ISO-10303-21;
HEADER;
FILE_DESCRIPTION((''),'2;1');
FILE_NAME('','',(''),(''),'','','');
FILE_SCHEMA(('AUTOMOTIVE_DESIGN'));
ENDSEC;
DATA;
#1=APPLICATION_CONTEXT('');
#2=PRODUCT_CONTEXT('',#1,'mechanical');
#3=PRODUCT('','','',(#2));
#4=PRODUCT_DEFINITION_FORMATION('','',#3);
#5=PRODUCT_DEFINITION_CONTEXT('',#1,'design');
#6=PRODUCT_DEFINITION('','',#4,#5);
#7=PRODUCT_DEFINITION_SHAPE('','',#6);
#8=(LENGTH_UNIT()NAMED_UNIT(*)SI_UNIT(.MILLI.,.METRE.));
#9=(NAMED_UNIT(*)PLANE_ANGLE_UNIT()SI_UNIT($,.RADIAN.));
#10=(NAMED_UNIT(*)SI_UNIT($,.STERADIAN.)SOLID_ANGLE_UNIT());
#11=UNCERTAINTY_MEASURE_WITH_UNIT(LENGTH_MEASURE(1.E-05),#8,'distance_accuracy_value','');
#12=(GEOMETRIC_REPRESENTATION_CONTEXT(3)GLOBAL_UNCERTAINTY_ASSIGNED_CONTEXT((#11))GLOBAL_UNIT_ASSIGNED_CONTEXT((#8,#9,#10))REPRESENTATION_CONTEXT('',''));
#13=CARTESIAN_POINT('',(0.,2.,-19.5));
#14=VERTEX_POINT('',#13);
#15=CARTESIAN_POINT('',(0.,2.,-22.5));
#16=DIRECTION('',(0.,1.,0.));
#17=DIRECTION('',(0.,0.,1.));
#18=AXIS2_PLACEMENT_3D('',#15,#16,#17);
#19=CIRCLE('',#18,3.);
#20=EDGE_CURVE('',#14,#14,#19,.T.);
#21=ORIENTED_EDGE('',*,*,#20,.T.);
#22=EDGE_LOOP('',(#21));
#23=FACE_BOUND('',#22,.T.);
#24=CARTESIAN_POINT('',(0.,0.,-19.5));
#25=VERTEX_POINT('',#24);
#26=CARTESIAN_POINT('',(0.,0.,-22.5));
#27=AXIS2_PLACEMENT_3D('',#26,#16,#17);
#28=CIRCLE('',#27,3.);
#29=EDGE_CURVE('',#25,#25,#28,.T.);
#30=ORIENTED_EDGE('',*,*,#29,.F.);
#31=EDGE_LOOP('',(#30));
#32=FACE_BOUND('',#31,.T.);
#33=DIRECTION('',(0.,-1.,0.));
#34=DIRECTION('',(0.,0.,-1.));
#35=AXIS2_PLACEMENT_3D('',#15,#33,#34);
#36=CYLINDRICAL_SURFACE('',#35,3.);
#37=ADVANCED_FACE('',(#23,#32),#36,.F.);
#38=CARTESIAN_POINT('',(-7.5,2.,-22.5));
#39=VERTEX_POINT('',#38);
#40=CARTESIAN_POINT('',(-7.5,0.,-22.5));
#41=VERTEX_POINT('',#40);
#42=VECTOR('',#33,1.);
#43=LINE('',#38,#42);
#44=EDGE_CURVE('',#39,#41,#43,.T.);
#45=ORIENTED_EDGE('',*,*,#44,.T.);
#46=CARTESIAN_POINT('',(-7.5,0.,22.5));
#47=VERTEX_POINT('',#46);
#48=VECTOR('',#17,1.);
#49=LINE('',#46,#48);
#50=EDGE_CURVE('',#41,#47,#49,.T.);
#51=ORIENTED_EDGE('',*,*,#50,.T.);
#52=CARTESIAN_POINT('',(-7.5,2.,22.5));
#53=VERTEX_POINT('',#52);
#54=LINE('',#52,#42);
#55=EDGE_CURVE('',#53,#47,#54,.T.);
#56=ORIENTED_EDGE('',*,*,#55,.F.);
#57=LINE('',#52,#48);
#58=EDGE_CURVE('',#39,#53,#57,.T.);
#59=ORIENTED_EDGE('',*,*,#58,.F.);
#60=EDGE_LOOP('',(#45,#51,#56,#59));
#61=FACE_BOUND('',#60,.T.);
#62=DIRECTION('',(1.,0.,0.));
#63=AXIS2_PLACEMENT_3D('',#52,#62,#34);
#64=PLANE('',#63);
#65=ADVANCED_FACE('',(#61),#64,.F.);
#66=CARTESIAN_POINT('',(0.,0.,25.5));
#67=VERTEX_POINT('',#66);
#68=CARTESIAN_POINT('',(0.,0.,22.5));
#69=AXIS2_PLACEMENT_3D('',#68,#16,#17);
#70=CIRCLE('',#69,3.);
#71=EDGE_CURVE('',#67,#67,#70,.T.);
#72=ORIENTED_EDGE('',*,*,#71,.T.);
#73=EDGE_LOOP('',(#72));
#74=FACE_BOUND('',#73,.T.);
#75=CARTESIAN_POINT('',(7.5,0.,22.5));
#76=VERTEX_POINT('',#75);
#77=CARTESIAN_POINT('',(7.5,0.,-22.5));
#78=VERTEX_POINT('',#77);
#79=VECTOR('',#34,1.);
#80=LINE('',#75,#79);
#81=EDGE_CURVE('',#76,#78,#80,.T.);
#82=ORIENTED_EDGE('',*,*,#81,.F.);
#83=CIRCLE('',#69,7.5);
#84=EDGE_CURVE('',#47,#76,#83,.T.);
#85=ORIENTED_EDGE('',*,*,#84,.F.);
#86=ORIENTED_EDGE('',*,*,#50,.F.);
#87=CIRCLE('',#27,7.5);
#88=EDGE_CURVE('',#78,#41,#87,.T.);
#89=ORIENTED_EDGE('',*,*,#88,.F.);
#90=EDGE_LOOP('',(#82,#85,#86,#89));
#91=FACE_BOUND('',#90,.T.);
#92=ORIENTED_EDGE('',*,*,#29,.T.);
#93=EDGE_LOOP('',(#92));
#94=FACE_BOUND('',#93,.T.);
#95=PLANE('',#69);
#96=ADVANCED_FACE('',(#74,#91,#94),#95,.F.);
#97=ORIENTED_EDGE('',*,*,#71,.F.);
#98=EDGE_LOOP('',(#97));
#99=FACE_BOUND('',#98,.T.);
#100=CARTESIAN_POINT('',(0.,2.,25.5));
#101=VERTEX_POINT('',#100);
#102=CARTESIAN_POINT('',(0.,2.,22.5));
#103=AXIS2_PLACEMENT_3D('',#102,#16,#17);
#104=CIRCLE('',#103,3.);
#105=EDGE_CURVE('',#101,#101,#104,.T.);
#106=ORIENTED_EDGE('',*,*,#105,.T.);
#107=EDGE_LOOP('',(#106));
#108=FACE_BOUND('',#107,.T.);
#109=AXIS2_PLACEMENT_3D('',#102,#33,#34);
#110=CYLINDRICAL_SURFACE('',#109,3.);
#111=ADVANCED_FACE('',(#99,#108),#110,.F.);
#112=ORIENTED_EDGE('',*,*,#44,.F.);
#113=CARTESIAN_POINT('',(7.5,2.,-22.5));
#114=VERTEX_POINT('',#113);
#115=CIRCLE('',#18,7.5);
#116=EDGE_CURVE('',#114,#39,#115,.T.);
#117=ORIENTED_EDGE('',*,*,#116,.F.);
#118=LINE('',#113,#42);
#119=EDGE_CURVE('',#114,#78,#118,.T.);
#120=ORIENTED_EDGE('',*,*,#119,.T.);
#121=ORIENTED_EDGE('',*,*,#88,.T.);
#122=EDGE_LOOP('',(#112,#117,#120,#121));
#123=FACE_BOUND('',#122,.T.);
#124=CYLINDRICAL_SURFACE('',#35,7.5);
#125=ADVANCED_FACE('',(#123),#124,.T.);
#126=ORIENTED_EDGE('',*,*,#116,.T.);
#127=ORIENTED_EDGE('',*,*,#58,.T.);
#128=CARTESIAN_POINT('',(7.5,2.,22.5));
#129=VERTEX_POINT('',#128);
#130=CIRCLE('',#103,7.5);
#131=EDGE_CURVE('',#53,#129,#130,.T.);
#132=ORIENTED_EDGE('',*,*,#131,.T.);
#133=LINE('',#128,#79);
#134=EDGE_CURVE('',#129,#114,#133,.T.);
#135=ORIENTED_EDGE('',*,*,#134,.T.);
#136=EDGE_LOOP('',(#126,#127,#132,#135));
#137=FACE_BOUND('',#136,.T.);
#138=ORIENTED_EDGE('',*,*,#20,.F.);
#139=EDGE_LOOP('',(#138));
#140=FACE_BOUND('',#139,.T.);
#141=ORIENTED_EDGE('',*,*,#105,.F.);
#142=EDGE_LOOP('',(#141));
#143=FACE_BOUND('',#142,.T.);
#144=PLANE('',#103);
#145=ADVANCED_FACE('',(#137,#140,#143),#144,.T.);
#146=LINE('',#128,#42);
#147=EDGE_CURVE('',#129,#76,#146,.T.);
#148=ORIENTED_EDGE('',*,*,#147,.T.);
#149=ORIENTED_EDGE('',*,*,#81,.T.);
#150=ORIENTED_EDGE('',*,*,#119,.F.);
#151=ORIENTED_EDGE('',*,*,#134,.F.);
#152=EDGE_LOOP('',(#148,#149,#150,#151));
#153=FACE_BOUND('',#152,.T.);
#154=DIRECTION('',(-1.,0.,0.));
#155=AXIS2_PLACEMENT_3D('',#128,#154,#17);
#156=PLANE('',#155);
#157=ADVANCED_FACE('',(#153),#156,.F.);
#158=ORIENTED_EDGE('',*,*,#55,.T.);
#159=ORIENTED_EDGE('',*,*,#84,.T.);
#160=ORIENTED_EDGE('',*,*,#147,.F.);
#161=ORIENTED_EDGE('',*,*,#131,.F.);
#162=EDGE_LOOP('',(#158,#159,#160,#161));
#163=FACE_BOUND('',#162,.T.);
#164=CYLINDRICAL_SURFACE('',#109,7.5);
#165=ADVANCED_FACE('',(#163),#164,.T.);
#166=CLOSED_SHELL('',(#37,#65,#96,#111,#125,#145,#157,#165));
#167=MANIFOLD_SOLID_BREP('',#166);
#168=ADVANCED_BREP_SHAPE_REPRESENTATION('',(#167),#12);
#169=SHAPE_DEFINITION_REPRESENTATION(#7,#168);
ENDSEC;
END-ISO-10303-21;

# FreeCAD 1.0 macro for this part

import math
import FreeCAD as App
import Part
import Sketcher
Q = App.Units.Quantity

doc = App.newDocument("Part")
body = doc.addObject("PartDesign::Body", "Body")

# Sketch on XZ plane
sketch1 = body.newObject("Sketcher::SketchObject", "Sketch")
sketch1.AttachmentSupport = (doc.getObject("XZ_Plane"), [""])
sketch1.MapMode = "FlatFace"
sketch1.addGeometry([
    Part.LineSegment(App.Vector(-7.5, -22.5, 0), App.Vector(-7.5, 22.5, 0)),  # 0
    Part.ArcOfCircle(Part.Circle(App.Vector(0, 22.5, 0), App.Vector(0, 0, 1), 7.5), math.radians(0), math.radians(180)),  # 1
    Part.LineSegment(App.Vector(7.5, 22.5, 0), App.Vector(7.5, -22.5, 0)),  # 2
    Part.ArcOfCircle(Part.Circle(App.Vector(0, -22.5, 0), App.Vector(0, 0, 1), 7.5), math.radians(180), math.radians(360)),  # 3
    Part.Circle(App.Vector(0, 22.5, 0), App.Vector(0, 0, 1), 3),  # 4
    Part.Circle(App.Vector(0, -22.5, 0), App.Vector(0, 0, 1), 3),  # 5
], False)
sketch1.addConstraint([
    Sketcher.Constraint("Tangent", 0, 2, 1, 2),
    Sketcher.Constraint("Tangent", 1, 1, 2, 1),
    Sketcher.Constraint("Tangent", 2, 2, 3, 2),
    Sketcher.Constraint("Tangent", 3, 1, 0, 1),
    Sketcher.Constraint("Vertical", 0),
    Sketcher.Constraint("Vertical", 2),
    Sketcher.Constraint("Coincident", 4, 3, 1, 3),
    Sketcher.Constraint("Coincident", 5, 3, 3, 3),
    Sketcher.Constraint("Equal", 4, 5),
    Sketcher.Constraint("Symmetric", 1, 3, 3, 3, -1, 1),
    Sketcher.Constraint("Diameter", 4, Q("6 mm")),
    Sketcher.Constraint("Radius", 1, Q("7.5 mm")),
    Sketcher.Constraint("DistanceY", 0, 1, 0, 2, Q("45 mm")),
])
pad1 = body.newObject("PartDesign::Pad", "Pad")
pad1.Profile = sketch1
pad1.Length = 2
pad1.Reversed = True

doc.recompute()
